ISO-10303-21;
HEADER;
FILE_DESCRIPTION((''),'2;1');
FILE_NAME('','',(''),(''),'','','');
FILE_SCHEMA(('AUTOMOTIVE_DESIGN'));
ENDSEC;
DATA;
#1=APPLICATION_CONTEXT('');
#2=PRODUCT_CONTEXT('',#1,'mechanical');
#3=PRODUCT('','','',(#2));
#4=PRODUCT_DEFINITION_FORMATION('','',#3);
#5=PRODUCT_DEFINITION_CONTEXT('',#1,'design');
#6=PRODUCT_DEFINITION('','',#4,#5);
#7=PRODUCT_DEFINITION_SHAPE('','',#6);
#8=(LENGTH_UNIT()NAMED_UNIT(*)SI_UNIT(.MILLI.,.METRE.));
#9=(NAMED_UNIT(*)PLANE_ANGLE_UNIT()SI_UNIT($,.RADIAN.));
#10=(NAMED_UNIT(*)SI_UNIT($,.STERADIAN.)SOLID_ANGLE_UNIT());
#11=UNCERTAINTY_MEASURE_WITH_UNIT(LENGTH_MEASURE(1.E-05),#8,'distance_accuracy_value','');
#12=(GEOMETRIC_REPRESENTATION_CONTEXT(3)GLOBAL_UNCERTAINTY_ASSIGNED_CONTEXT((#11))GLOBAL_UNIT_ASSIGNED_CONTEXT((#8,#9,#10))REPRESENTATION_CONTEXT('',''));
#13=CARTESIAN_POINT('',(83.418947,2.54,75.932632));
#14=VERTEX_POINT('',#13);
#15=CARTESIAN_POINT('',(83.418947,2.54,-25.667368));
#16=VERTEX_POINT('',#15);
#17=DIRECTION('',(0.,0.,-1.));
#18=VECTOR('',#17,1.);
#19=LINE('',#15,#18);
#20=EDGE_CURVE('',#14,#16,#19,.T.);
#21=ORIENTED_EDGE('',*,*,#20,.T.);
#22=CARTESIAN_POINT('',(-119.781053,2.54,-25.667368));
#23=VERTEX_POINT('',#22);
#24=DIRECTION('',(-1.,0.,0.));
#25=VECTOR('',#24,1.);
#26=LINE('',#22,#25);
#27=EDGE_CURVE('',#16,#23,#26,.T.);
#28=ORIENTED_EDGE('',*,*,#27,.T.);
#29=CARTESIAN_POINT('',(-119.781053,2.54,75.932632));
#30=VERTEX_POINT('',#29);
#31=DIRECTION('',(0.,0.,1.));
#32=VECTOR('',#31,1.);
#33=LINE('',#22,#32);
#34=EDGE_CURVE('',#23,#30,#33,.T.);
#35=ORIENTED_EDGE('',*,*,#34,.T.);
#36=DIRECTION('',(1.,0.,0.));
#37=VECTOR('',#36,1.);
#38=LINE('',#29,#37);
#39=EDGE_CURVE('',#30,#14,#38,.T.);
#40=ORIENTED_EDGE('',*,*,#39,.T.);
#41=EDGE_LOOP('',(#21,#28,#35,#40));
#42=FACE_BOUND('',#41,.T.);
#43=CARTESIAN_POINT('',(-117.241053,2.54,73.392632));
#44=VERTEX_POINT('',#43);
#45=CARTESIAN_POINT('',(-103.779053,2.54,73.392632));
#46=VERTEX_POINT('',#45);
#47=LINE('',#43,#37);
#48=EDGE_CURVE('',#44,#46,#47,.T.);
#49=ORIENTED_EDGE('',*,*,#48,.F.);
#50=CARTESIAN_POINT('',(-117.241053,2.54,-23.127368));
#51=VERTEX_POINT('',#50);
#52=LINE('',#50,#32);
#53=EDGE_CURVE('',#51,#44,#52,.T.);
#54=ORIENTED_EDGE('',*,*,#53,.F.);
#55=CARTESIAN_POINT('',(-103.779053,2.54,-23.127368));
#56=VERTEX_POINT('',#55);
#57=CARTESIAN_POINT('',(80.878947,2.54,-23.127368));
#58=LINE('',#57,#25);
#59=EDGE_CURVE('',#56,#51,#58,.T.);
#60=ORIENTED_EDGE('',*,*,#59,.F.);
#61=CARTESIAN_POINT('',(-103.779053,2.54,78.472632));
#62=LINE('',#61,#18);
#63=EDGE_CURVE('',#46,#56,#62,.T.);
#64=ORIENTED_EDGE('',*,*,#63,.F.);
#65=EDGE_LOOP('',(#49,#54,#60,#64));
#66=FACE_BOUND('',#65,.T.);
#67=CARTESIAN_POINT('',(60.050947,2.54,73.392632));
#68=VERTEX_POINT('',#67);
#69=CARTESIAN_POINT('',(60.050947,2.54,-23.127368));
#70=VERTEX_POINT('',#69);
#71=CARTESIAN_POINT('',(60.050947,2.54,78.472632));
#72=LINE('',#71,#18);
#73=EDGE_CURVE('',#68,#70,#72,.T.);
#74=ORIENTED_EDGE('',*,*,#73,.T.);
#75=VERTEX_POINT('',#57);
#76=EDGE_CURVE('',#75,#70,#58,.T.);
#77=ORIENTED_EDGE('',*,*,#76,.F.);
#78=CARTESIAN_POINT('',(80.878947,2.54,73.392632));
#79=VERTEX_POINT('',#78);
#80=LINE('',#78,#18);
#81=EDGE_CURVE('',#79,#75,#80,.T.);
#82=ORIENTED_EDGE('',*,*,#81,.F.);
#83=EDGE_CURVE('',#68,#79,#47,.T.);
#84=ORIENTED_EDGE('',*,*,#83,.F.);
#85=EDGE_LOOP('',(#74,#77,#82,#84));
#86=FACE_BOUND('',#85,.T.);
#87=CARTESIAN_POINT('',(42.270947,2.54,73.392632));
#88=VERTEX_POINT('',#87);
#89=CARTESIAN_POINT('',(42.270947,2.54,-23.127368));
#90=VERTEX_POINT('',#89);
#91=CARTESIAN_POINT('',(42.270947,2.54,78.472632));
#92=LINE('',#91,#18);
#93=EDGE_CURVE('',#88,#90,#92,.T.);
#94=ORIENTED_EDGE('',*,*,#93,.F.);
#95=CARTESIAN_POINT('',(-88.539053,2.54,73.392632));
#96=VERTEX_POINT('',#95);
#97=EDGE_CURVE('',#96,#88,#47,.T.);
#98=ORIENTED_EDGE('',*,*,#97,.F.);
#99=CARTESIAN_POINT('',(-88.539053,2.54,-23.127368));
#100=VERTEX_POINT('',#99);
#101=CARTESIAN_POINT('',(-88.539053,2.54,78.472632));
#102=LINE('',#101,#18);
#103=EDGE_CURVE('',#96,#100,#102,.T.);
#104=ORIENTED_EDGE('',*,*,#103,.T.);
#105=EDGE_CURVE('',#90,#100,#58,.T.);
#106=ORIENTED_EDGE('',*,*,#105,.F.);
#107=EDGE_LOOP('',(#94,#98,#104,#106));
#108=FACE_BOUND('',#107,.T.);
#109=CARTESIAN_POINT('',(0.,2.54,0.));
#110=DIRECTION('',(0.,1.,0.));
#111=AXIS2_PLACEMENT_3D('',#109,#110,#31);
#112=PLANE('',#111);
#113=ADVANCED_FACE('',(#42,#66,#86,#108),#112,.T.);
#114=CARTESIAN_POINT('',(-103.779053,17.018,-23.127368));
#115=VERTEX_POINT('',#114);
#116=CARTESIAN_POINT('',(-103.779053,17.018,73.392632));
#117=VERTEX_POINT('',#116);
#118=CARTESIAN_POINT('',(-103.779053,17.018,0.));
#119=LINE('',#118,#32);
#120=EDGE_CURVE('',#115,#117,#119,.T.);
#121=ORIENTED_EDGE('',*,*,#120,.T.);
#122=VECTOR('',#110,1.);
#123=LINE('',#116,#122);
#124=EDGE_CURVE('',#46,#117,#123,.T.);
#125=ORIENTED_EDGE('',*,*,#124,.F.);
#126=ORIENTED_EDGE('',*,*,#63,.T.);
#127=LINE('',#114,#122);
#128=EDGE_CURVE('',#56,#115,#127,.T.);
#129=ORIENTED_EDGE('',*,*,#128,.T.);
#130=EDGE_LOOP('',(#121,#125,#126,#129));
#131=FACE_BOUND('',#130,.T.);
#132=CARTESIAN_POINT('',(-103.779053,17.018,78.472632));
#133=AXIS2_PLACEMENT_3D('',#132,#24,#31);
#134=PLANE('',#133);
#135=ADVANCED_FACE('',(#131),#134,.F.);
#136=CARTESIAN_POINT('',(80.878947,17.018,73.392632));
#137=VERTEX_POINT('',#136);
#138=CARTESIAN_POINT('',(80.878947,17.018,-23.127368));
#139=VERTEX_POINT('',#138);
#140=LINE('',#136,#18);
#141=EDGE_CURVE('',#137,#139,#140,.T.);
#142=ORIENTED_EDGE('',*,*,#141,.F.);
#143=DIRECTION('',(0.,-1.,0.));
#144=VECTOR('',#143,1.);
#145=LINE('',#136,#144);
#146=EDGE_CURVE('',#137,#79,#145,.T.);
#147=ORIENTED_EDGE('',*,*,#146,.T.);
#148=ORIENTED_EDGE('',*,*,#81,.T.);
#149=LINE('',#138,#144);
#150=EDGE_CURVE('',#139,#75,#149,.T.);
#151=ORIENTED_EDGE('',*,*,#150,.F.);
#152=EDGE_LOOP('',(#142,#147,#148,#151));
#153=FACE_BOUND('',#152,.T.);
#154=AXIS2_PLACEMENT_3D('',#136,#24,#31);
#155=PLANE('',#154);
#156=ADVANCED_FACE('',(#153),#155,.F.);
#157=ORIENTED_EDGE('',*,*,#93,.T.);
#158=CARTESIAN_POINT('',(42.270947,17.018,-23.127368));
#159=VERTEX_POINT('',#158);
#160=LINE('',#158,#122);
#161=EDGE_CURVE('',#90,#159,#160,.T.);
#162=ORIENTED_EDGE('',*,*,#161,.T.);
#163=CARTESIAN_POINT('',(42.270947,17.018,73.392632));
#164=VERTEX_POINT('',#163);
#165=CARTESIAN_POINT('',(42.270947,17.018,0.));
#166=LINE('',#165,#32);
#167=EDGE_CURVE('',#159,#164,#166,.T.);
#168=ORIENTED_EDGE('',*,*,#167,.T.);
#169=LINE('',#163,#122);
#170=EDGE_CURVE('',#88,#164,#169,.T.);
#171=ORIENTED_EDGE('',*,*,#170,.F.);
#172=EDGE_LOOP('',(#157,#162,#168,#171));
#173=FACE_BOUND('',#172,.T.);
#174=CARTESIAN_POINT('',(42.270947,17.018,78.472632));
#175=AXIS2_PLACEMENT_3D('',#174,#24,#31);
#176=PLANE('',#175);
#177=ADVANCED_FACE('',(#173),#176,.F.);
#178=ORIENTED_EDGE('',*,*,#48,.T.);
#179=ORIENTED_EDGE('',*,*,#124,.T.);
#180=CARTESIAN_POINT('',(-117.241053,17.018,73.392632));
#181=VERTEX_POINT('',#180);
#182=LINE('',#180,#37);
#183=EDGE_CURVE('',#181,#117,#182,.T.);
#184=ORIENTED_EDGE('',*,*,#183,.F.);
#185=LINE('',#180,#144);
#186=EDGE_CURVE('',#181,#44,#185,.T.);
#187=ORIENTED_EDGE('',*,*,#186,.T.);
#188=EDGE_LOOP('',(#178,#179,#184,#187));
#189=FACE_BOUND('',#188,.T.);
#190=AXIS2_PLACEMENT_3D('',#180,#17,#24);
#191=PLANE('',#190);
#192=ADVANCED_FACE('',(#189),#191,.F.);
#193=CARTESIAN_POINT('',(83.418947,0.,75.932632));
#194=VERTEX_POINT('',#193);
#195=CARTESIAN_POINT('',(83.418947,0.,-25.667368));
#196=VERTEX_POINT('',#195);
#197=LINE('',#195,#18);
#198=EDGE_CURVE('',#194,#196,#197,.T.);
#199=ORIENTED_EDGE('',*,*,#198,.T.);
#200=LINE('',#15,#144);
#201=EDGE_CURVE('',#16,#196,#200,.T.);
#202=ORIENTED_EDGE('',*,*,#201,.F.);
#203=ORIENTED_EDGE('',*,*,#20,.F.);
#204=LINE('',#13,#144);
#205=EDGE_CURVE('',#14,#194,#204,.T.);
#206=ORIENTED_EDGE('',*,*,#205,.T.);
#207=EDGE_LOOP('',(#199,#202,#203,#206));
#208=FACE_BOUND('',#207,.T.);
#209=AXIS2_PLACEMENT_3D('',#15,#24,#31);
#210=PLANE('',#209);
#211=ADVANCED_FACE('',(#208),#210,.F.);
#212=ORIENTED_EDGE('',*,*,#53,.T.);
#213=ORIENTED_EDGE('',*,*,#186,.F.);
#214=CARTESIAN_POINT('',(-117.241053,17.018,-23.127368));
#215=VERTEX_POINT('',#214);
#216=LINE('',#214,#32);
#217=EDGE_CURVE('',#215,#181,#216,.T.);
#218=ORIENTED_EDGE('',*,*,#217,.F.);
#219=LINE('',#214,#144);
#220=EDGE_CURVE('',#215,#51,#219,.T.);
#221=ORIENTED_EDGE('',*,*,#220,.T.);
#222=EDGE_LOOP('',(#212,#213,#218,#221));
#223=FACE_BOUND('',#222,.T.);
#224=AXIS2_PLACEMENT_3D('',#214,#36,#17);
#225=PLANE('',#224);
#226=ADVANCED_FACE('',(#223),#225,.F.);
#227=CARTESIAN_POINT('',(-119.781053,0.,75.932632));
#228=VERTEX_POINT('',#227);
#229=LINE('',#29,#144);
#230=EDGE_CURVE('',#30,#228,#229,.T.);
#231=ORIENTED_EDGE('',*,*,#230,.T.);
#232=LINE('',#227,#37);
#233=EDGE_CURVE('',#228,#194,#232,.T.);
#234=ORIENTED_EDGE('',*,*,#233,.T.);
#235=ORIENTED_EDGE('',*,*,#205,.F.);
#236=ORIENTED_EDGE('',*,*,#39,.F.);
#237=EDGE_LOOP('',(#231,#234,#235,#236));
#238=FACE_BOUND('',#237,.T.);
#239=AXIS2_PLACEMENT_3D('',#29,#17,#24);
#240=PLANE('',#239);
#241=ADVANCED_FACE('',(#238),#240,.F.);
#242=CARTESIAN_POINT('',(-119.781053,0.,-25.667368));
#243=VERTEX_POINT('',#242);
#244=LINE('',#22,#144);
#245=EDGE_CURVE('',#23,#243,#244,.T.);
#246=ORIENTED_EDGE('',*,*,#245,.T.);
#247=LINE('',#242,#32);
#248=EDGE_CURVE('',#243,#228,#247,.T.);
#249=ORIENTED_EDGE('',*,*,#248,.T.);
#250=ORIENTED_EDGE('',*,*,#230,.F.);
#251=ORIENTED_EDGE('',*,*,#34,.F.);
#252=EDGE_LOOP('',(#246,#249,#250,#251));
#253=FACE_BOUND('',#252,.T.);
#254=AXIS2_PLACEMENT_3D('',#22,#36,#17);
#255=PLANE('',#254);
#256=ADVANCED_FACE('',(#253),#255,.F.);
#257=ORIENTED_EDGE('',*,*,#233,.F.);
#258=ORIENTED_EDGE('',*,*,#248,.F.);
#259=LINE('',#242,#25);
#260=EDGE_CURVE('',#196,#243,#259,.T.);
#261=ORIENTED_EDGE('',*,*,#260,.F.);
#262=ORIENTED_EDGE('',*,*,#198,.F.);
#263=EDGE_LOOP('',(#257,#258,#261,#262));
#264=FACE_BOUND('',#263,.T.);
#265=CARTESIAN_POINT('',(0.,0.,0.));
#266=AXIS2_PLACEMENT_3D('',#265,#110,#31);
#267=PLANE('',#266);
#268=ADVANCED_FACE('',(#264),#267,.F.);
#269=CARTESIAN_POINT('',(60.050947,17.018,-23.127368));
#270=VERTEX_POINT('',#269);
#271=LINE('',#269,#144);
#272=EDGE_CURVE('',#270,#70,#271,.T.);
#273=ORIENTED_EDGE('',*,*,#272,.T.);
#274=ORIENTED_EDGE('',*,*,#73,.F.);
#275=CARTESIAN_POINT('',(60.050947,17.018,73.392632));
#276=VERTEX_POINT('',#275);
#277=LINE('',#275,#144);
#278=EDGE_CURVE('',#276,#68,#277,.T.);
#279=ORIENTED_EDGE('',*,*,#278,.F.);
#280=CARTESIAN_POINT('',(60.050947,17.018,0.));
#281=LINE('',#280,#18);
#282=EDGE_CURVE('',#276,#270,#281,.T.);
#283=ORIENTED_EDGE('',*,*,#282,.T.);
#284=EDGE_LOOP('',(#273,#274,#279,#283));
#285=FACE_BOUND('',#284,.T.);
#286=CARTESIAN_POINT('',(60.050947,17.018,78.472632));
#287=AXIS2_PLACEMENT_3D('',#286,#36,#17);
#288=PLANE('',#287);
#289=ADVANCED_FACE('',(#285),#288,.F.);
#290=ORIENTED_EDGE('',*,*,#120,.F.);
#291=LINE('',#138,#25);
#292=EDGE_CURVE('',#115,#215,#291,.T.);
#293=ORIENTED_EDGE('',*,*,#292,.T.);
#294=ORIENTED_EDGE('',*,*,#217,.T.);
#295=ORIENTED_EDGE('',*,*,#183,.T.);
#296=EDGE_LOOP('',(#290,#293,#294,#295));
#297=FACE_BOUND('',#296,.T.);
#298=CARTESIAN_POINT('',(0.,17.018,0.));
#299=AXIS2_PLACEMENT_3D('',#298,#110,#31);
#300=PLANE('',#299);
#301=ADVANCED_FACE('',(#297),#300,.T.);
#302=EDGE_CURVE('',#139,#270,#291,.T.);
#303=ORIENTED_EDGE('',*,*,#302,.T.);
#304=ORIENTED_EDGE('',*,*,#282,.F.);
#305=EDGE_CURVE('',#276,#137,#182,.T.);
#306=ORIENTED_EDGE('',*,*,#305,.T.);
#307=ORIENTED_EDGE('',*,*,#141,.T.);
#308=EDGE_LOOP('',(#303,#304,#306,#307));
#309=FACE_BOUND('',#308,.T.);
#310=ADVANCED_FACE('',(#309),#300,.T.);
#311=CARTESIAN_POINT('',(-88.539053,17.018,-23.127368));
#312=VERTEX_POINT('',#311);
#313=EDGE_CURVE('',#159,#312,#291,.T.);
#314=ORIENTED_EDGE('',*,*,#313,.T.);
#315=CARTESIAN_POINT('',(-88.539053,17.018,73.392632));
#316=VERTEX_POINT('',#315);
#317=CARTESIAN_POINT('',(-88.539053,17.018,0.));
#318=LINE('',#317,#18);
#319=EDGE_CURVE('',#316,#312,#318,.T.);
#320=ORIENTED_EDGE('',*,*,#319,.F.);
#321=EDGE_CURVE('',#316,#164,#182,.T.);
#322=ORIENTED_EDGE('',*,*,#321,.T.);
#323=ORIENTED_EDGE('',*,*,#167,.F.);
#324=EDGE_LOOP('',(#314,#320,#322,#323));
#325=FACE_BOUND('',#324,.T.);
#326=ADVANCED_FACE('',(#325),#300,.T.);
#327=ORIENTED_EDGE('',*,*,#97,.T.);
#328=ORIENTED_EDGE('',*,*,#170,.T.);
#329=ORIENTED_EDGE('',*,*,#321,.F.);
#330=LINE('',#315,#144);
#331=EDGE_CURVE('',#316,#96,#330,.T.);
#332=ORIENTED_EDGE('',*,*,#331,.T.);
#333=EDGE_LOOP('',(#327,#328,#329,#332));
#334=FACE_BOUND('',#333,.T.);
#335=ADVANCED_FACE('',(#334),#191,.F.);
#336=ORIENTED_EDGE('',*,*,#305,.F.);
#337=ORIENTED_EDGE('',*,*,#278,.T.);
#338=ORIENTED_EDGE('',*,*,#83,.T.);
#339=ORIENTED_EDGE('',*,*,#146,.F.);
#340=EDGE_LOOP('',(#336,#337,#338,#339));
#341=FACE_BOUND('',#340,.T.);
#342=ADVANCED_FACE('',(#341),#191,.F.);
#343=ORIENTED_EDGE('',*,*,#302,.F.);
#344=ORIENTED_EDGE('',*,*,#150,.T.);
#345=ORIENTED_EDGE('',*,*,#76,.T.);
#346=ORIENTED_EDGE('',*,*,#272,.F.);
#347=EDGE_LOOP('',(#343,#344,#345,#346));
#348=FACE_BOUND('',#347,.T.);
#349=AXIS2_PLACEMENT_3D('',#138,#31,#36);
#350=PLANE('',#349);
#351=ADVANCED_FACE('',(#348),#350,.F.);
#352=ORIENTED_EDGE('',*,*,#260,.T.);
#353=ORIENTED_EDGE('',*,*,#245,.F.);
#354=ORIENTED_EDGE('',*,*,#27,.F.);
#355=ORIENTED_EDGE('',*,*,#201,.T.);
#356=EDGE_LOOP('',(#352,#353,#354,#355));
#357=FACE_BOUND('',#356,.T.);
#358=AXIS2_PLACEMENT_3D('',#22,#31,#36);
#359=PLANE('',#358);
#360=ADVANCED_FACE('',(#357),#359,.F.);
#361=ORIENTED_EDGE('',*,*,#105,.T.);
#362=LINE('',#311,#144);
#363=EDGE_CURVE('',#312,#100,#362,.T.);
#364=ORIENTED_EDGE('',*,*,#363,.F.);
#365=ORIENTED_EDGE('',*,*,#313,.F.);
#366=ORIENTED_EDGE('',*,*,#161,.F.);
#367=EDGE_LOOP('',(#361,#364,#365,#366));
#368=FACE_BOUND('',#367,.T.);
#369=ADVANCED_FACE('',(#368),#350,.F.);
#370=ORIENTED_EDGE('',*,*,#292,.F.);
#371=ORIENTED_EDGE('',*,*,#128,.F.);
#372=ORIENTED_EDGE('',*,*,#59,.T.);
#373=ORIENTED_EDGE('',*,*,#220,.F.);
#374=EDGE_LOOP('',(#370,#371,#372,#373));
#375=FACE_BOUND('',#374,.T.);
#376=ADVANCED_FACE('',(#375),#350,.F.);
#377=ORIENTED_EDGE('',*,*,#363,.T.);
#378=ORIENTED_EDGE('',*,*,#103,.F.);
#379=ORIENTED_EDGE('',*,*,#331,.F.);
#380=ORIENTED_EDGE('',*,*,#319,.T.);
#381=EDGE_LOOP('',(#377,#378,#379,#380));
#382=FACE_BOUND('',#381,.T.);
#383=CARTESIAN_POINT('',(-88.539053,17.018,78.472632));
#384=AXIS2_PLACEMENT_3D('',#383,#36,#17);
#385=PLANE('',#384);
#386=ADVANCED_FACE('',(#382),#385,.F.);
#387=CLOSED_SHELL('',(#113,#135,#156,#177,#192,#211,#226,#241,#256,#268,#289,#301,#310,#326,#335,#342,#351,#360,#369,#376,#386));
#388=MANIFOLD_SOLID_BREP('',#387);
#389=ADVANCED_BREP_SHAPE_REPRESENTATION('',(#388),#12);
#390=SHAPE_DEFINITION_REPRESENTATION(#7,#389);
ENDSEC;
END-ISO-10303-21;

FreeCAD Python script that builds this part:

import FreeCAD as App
import Part
import Sketcher
from FreeCAD import Vector
Q = App.Units.Quantity


def add_polygon(sketch, points):
    """Adds a closed chain of lines whose ends are joined by coincident constraints."""
    first, n = sketch.GeometryCount, len(points)
    for a, b in zip(points, points[1:] + points[:1]):
        sketch.addGeometry(Part.LineSegment(App.Vector(*a, 0), App.Vector(*b, 0)), False)
    for i in range(n):
        sketch.addConstraint(Sketcher.Constraint("Coincident", first + i, 2, first + (i + 1) % n, 1))

doc = App.newDocument("Part")
body = doc.addObject("PartDesign::Body", "Body")

# Sketch on XZ plane
sketch1 = body.newObject("Sketcher::SketchObject", "Sketch")
sketch1.AttachmentSupport = (doc.getObject("XZ_Plane"), [""])
sketch1.MapMode = "FlatFace"
add_polygon(sketch1, [(-120, -26), (-120, 76), (83, 76), (83, -26)])  # lines 0-3
sketch1.addConstraint(Sketcher.Constraint("Vertical", 0))
sketch1.addConstraint(Sketcher.Constraint("Horizontal", 1))
sketch1.addConstraint(Sketcher.Constraint("Vertical", 2))
sketch1.addConstraint(Sketcher.Constraint("Horizontal", 3))
sketch1.addConstraint(Sketcher.Constraint("DistanceX", 1, 1, 1, 2, Q("8 in")))
sketch1.addConstraint(Sketcher.Constraint("DistanceY", 0, 1, 0, 2, Q("4 in")))
sketch1.addConstraint(Sketcher.Constraint("DistanceY", -1, 1, 0, 2, Q("75.932632 mm")))
sketch1.addConstraint(Sketcher.Constraint("DistanceX", 0, 2, -1, 1, Q("119.781053 mm")))
pad1 = body.newObject("PartDesign::Pad", "Pad")
pad1.Profile = sketch1
pad1.Length = Q("0.1 in")
pad1.Reversed = True

# Sketch on XZ plane
sketch2 = body.newObject("Sketcher::SketchObject", "Sketch001")
sketch2.AttachmentSupport = (doc.getObject("XZ_Plane"), [""])
sketch2.MapMode = "FlatFace"
sketch2.AttachmentOffset = App.Placement(Vector(0, 0, -0.1 * 25.4), App.Rotation())
add_polygon(sketch2, [(-117, -23), (-117, 73), (81, 73), (81, -23)])  # lines 0-3
sketch2.addConstraint(Sketcher.Constraint("Vertical", 0))
sketch2.addConstraint(Sketcher.Constraint("Horizontal", 1))
sketch2.addConstraint(Sketcher.Constraint("Vertical", 2))
sketch2.addConstraint(Sketcher.Constraint("Horizontal", 3))
sketch2.addConstraint(Sketcher.Constraint("DistanceX", 1, 1, 1, 2, Q("7.8 in")))
sketch2.addConstraint(Sketcher.Constraint("DistanceY", 0, 1, 0, 2, Q("3.8 in")))
sketch2.addConstraint(Sketcher.Constraint("DistanceY", -1, 1, 0, 2, Q("73.392632 mm")))
sketch2.addConstraint(Sketcher.Constraint("DistanceX", 0, 2, -1, 1, Q("117.241053 mm")))
pad2 = body.newObject("PartDesign::Pad", "Pad001")
pad2.Profile = sketch2
pad2.Length = Q("0.57 in")
pad2.Reversed = True

# Sketch on XY plane
sketch3 = body.newObject("Sketcher::SketchObject", "Sketch002")
sketch3.AttachmentSupport = (doc.getObject("XY_Plane"), [""])
sketch3.MapMode = "FlatFace"
sketch3.AttachmentOffset = App.Placement(Vector(0, 0, -23.127368), App.Rotation())
add_polygon(sketch3, [(60, 17), (60, 3), (42, 3), (42, 17)])  # lines 0-3
add_polygon(sketch3, [(-89, 17), (-89, 3), (-104, 3), (-104, 17)])  # lines 4-7
sketch3.addConstraint(Sketcher.Constraint("Vertical", 0))
sketch3.addConstraint(Sketcher.Constraint("Horizontal", 1))
sketch3.addConstraint(Sketcher.Constraint("Vertical", 2))
sketch3.addConstraint(Sketcher.Constraint("Horizontal", 3))
sketch3.addConstraint(Sketcher.Constraint("Vertical", 4))
sketch3.addConstraint(Sketcher.Constraint("Horizontal", 5))
sketch3.addConstraint(Sketcher.Constraint("Vertical", 6))
sketch3.addConstraint(Sketcher.Constraint("Horizontal", 7))
sketch3.addConstraint(Sketcher.Constraint("Horizontal", 1, 2, 4, 2))
sketch3.addConstraint(Sketcher.Constraint("Horizontal", 3, 2, 6, 2))
sketch3.addConstraint(Sketcher.Constraint("DistanceX", 1, 2, 1, 1, Q("0.7 in")))
sketch3.addConstraint(Sketcher.Constraint("DistanceX", 5, 2, 5, 1, Q("0.6 in")))
sketch3.addConstraint(Sketcher.Constraint("DistanceY", 0, 2, 0, 1, Q("0.57 in")))
sketch3.addConstraint(Sketcher.Constraint("DistanceY", -1, 1, 0, 2, Q("0.1 in")))
sketch3.addConstraint(Sketcher.Constraint("DistanceX", 4, 2, 1, 2, Q("5.15 in")))
sketch3.addConstraint(Sketcher.Constraint("DistanceX", -1, 1, 0, 2, Q("60.050947 mm")))
pocket1 = body.newObject("PartDesign::Pocket", "Pocket")
pocket1.Profile = sketch3
pocket1.Length = Q("4 in")
pocket1.Reversed = True

doc.recompute()
